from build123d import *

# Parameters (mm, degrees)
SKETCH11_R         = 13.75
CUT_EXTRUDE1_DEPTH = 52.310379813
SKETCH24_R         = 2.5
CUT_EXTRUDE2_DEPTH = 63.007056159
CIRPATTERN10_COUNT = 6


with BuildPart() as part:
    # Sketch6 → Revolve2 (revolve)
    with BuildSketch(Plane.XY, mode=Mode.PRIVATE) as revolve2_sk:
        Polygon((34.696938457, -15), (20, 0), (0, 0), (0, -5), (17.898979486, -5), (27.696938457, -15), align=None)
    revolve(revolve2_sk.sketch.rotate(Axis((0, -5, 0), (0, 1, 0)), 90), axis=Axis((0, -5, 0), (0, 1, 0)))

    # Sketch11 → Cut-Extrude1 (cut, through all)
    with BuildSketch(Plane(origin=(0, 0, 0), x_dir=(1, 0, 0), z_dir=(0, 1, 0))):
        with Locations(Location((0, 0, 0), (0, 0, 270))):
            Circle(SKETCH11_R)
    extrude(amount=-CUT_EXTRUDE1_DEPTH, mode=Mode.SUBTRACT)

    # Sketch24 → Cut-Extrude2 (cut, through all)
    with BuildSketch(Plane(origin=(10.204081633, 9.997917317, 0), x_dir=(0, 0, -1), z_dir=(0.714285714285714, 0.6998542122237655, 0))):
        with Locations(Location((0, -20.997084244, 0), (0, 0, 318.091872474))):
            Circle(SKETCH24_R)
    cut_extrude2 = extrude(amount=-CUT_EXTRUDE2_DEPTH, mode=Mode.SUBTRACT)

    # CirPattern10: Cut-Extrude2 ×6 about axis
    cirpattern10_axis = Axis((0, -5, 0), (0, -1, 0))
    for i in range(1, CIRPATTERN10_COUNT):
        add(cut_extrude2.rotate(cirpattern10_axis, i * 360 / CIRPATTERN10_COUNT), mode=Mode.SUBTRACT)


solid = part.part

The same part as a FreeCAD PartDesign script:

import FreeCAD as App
import Part
import Sketcher
from FreeCAD import Vector

doc = App.newDocument("Part")
params = doc.addObject("Spreadsheet::Sheet", "Params")
for row, (alias, value) in enumerate([
    ("sketch1_width", "20 mm"),
    ("sketch1_width2", "7 mm"),
    ("sketch1_height", "5 mm"),
    ("sketch1_length", "21 mm"),
    ("sketch1_length2", "14 mm"),
    ("revolution_angle", "360 deg"),
    ("sketch2_diameter", "27.5 mm"),
    ("sketch3_diameter", "5 mm"),
], start=1):
    params.set(f"A{row}", alias)
    params.set(f"B{row}", "=" + value)
    params.setAlias(f"B{row}", alias)

body = doc.addObject("PartDesign::Body", "Body")

sketch1 = doc.addObject("Sketcher::SketchObject", "Sketch")
body.addObject(sketch1)
sketch1.AttachmentSupport = (doc.XY_Plane, [""])
sketch1.MapMode = "FlatFace"
sketch1.addGeometry(Part.LineSegment(Vector(35, -15, 0), Vector(20, 0, 0)), False)
sketch1.addGeometry(Part.LineSegment(Vector(20, 0, 0), Vector(0, 0, 0)), False)
sketch1.addGeometry(Part.LineSegment(Vector(0, 0, 0), Vector(0, -5, 0)), False)
sketch1.addGeometry(Part.LineSegment(Vector(0, -5, 0), Vector(18, -5, 0)), False)
sketch1.addGeometry(Part.LineSegment(Vector(18, -5, 0), Vector(28, -15, 0)), False)
sketch1.addGeometry(Part.LineSegment(Vector(28, -15, 0), Vector(35, -15, 0)), False)
sketch1.addConstraint(Sketcher.Constraint("Coincident", 0, 2, 1, 1))
sketch1.addConstraint(Sketcher.Constraint("Coincident", 1, 2, 2, 1))
sketch1.addConstraint(Sketcher.Constraint("Coincident", 2, 2, 3, 1))
sketch1.addConstraint(Sketcher.Constraint("Coincident", 3, 2, 4, 1))
sketch1.addConstraint(Sketcher.Constraint("Coincident", 4, 2, 5, 1))
sketch1.addConstraint(Sketcher.Constraint("Coincident", 5, 2, 0, 1))
sketch1.addConstraint(Sketcher.Constraint("Horizontal", 1))
sketch1.addConstraint(Sketcher.Constraint("Vertical", 2))
sketch1.addConstraint(Sketcher.Constraint("Horizontal", 3))
sketch1.addConstraint(Sketcher.Constraint("Horizontal", 5))
sketch1.addConstraint(Sketcher.Constraint("Coincident", 1, 2, -1, 1))
sketch1.addConstraint(Sketcher.Constraint("Parallel", 0, 4))
sketch1.addConstraint(Sketcher.Constraint("DistanceX", 1, 2, 1, 1, 20.0))
sketch1.addConstraint(Sketcher.Constraint("DistanceX", 5, 1, 5, 2, 7.0))
sketch1.addConstraint(Sketcher.Constraint("DistanceY", 2, 2, 2, 1, 5.0))
sketch1.addConstraint(Sketcher.Constraint("Distance", 0, 21.0))
sketch1.addConstraint(Sketcher.Constraint("Distance", 4, 14.0))
sketch1.setExpression("Constraints[12]", "Params.sketch1_width")
sketch1.setExpression("Constraints[13]", "Params.sketch1_width2")
sketch1.setExpression("Constraints[14]", "Params.sketch1_height")
sketch1.setExpression("Constraints[15]", "Params.sketch1_length")
sketch1.setExpression("Constraints[16]", "Params.sketch1_length2")
revolution = doc.addObject("PartDesign::Revolution", "Revolution")
body.addObject(revolution)
revolution.Profile = sketch1
revolution.ReferenceAxis = (sketch1, ["V_Axis"])
revolution.setExpression("Angle", "Params.revolution_angle")

sketch2 = doc.addObject("Sketcher::SketchObject", "Sketch001")
body.addObject(sketch2)
sketch2.AttachmentSupport = (doc.XZ_Plane, [""])
sketch2.MapMode = "FlatFace"
sketch2.addGeometry(Part.Circle(Vector(0, 0, 0), Vector(0, 0, 1), 14), False)
sketch2.addConstraint(Sketcher.Constraint("Coincident", 0, 3, -1, 1))
sketch2.addConstraint(Sketcher.Constraint("Diameter", 0, 27.5))
sketch2.setExpression("Constraints[1]", "Params.sketch2_diameter")
pocket1 = doc.addObject("PartDesign::Pocket", "Pocket")
body.addObject(pocket1)
pocket1.Profile = sketch2
pocket1.Type = "ThroughAll"
pocket1.Reversed = True

sketch3 = doc.addObject("Sketcher::SketchObject", "Sketch002")
body.addObject(sketch3)
sketch3.Placement = App.Placement(Vector(10.204082, 9.997917, 0), App.Rotation(Vector(0, 0, -1), Vector(-0.699854212, 0.714285714, 0), Vector(0.714285714, 0.699854212, 0), "ZXY"))
sketch3.addGeometry(Part.Circle(Vector(0, -21, 0), Vector(0, 0, 1), 2.5), False)
sketch3.addConstraint(Sketcher.Constraint("PointOnObject", 0, 3, -2))
sketch3.addConstraint(Sketcher.Constraint("Diameter", 0, 5.0))
sketch3.addConstraint(Sketcher.Constraint("DistanceY", 0, 3, -1, 1, 20.997084))
sketch3.setExpression("Constraints[1]", "Params.sketch3_diameter")
pocket2 = doc.addObject("PartDesign::Pocket", "Pocket001")
body.addObject(pocket2)
pocket2.Profile = sketch3
pocket2.Type = "ThroughAll"
doc.recompute()

polarpattern = doc.addObject("PartDesign::PolarPattern", "PolarPattern")
body.addObject(polarpattern)
polarpattern.Originals = [pocket2]
polarpattern.Axis = (doc.Y_Axis, [""])
polarpattern.Angle = 360
polarpattern.Occurrences = 6
body.Tip = polarpattern

doc.recompute()
